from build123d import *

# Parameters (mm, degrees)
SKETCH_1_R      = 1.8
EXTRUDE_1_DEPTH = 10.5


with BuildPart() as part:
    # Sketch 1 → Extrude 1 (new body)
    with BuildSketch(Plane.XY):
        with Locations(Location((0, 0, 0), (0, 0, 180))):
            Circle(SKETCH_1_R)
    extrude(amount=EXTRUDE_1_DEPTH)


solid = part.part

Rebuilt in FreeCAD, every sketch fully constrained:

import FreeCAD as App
import Part
import Sketcher
from FreeCAD import Vector
Q = App.Units.Quantity

doc = App.newDocument("Part")
body = doc.addObject("PartDesign::Body", "Body")

sketch1 = body.newObject("Sketcher::SketchObject", "Sketch")
sketch1.AttachmentSupport = (doc.getObject("XY_Plane"), [""])
sketch1.MapMode = "FlatFace"
sketch1.addGeometry(Part.Circle(Vector(0, 0, 0), Vector(0, 0, 1), 1.8), False)
sketch1.addConstraint([
    Sketcher.Constraint("Coincident", 0, 3, -1, 1),
    Sketcher.Constraint("Diameter", 0, Q("3.6 mm")),
])
pad1 = body.newObject("PartDesign::Pad", "Pad")
pad1.Profile = sketch1
pad1.Length = 10.5

doc.recompute()
